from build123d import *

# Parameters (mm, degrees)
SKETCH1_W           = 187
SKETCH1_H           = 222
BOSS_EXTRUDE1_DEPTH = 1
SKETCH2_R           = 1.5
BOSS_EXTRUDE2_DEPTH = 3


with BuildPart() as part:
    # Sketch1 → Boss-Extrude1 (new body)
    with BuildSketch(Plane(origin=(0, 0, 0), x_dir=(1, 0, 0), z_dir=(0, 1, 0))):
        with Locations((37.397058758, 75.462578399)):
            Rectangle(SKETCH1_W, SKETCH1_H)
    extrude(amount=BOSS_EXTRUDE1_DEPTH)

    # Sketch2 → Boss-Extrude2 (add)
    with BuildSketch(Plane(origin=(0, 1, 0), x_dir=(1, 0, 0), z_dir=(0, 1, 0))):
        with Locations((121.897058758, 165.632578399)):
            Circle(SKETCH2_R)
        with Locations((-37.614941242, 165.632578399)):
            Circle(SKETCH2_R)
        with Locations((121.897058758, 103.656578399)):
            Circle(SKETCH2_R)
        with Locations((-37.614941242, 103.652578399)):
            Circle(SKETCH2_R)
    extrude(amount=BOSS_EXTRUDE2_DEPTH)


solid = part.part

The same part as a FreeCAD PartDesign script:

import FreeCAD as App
import Part
import Sketcher
Q = App.Units.Quantity

doc = App.newDocument("Part")
body = doc.addObject("PartDesign::Body", "Body")

# Sketch on XZ plane
sketch1 = body.newObject("Sketcher::SketchObject", "Sketch")
sketch1.AttachmentSupport = (doc.getObject("XZ_Plane"), [""])
sketch1.MapMode = "FlatFace"
sketch1.addGeometry([
    Part.LineSegment(App.Vector(-56.102941, -186.462578, 0), App.Vector(-56.102941, 35.537422, 0)),
    Part.LineSegment(App.Vector(-56.102941, 35.537422, 0), App.Vector(130.897059, 35.537422, 0)),
    Part.LineSegment(App.Vector(130.897059, 35.537422, 0), App.Vector(130.897059, -186.462578, 0)),
    Part.LineSegment(App.Vector(130.897059, -186.462578, 0), App.Vector(-56.102941, -186.462578, 0)),
], False)
sketch1.addConstraint([
    Sketcher.Constraint("Coincident", 0, 2, 1, 1),
    Sketcher.Constraint("Coincident", 1, 2, 2, 1),
    Sketcher.Constraint("Coincident", 2, 2, 3, 1),
    Sketcher.Constraint("Coincident", 3, 2, 0, 1),
    Sketcher.Constraint("Vertical", 0),
    Sketcher.Constraint("Horizontal", 1),
    Sketcher.Constraint("Vertical", 2),
    Sketcher.Constraint("Horizontal", 3),
    Sketcher.Constraint("DistanceX", 1, 1, 1, 2, Q("187 mm")),
    Sketcher.Constraint("DistanceY", 0, 1, 0, 2, Q("222 mm")),
    Sketcher.Constraint("DistanceX", 0, 2, -1, 1, Q("56.102941 mm")),
    Sketcher.Constraint("DistanceY", -1, 1, 0, 2, Q("35.537422 mm")),
])
pad1 = body.newObject("PartDesign::Pad", "Pad")
pad1.Profile = sketch1
pad1.Length = 1
pad1.Reversed = True

# Sketch on XZ plane
sketch2 = body.newObject("Sketcher::SketchObject", "Sketch001")
sketch2.AttachmentSupport = (doc.getObject("XZ_Plane"), [""])
sketch2.MapMode = "FlatFace"
sketch2.AttachmentOffset = App.Placement(App.Vector(0, 0, -1), App.Rotation())
sketch2.addGeometry([
    Part.Circle(App.Vector(121.897059, -165.632578, 0), App.Vector(0, 0, 1), 1.5),
    Part.Circle(App.Vector(-37.614941, -165.632578, 0), App.Vector(0, 0, 1), 1.5),
    Part.Circle(App.Vector(121.897059, -103.656578, 0), App.Vector(0, 0, 1), 1.5),
    Part.Circle(App.Vector(-37.614941, -103.652578, 0), App.Vector(0, 0, 1), 1.5),
], False)
sketch2.addConstraint([
    Sketcher.Constraint("Equal", 0, 1),
    Sketcher.Constraint("Equal", 1, 2),
    Sketcher.Constraint("Equal", 2, 3),
    Sketcher.Constraint("Horizontal", 0, 3, 1, 3),
    Sketcher.Constraint("Vertical", 0, 3, 2, 3),
    Sketcher.Constraint("Vertical", 1, 3, 3, 3),
    Sketcher.Constraint("Diameter", 0, Q("3 mm")),
    Sketcher.Constraint("DistanceY", 1, 3, 3, 3, Q("61.98 mm")),
    Sketcher.Constraint("DistanceX", 1, 3, 0, 3, Q("159.512 mm")),
    Sketcher.Constraint("DistanceY", 0, 3, 2, 3, Q("61.976 mm")),
    Sketcher.Constraint("DistanceX", -1, 1, 0, 3, Q("121.897059 mm")),
    Sketcher.Constraint("DistanceY", 0, 3, -1, 1, Q("165.632578 mm")),
])
pad2 = body.newObject("PartDesign::Pad", "Pad001")
pad2.Profile = sketch2
pad2.Length = 3
pad2.Reversed = True

doc.recompute()
